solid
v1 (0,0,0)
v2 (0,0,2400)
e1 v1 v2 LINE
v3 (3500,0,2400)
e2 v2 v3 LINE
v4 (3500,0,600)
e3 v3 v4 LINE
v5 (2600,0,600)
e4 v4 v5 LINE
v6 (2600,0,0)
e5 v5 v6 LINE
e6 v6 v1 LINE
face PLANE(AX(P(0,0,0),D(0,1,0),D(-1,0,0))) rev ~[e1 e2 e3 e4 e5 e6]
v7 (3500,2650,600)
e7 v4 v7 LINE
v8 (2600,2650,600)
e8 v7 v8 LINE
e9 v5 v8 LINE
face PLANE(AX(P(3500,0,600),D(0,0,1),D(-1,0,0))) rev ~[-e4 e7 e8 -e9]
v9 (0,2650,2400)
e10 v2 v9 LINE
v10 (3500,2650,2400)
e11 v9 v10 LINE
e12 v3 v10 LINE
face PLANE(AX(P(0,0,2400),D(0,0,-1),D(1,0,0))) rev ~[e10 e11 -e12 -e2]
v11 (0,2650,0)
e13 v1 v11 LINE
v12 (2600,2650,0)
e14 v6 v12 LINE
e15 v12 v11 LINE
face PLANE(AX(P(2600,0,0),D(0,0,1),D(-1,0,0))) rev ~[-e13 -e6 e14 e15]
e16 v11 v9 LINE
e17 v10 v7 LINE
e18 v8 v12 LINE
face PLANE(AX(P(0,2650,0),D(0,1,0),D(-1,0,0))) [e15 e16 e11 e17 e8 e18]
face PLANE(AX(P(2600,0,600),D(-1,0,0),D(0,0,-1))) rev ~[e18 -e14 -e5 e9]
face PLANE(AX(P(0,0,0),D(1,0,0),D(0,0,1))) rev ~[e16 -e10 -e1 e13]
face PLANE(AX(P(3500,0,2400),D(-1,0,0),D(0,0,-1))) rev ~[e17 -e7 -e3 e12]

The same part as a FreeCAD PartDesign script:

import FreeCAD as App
import Part
import Sketcher
Q = App.Units.Quantity

doc = App.newDocument("Part")
body = doc.addObject("PartDesign::Body", "Body")

# Sketch on XZ plane
sketch1 = body.newObject("Sketcher::SketchObject", "Sketch")
sketch1.AttachmentSupport = (doc.getObject("XZ_Plane"), [""])
sketch1.MapMode = "FlatFace"
sketch1.addGeometry(Part.LineSegment(App.Vector(2600, 0, 0), App.Vector(0, 0, 0)), False)
sketch1.addGeometry(Part.LineSegment(App.Vector(0, 0, 0), App.Vector(0, 2400, 0)), False)
sketch1.addGeometry(Part.LineSegment(App.Vector(0, 2400, 0), App.Vector(3500, 2400, 0)), False)
sketch1.addGeometry(Part.LineSegment(App.Vector(3500, 2400, 0), App.Vector(3500, 600, 0)), False)
sketch1.addGeometry(Part.LineSegment(App.Vector(3500, 600, 0), App.Vector(2600, 600, 0)), False)
sketch1.addGeometry(Part.LineSegment(App.Vector(2600, 600, 0), App.Vector(2600, 0, 0)), False)
sketch1.addConstraint(Sketcher.Constraint("Coincident", 0, 2, 1, 1))
sketch1.addConstraint(Sketcher.Constraint("Coincident", 1, 2, 2, 1))
sketch1.addConstraint(Sketcher.Constraint("Coincident", 2, 2, 3, 1))
sketch1.addConstraint(Sketcher.Constraint("Coincident", 3, 2, 4, 1))
sketch1.addConstraint(Sketcher.Constraint("Coincident", 4, 2, 5, 1))
sketch1.addConstraint(Sketcher.Constraint("Coincident", 5, 2, 0, 1))
sketch1.addConstraint(Sketcher.Constraint("Horizontal", 0))
sketch1.addConstraint(Sketcher.Constraint("Vertical", 1))
sketch1.addConstraint(Sketcher.Constraint("Horizontal", 2))
sketch1.addConstraint(Sketcher.Constraint("Vertical", 3))
sketch1.addConstraint(Sketcher.Constraint("Horizontal", 4))
sketch1.addConstraint(Sketcher.Constraint("Vertical", 5))
sketch1.addConstraint(Sketcher.Constraint("Coincident", 0, 2, -1, 1))
sketch1.addConstraint(Sketcher.Constraint("DistanceX", 2, 1, 2, 2, Q("3500 mm")))
sketch1.addConstraint(Sketcher.Constraint("DistanceX", 4, 2, 4, 1, Q("900 mm")))
sketch1.addConstraint(Sketcher.Constraint("DistanceY", 1, 1, 1, 2, Q("2400 mm")))
sketch1.addConstraint(Sketcher.Constraint("DistanceY", 3, 2, 3, 1, Q("1800 mm")))
pad1 = body.newObject("PartDesign::Pad", "Pad")
pad1.Profile = sketch1
pad1.Length = 2650
pad1.Reversed = True

doc.recompute()
